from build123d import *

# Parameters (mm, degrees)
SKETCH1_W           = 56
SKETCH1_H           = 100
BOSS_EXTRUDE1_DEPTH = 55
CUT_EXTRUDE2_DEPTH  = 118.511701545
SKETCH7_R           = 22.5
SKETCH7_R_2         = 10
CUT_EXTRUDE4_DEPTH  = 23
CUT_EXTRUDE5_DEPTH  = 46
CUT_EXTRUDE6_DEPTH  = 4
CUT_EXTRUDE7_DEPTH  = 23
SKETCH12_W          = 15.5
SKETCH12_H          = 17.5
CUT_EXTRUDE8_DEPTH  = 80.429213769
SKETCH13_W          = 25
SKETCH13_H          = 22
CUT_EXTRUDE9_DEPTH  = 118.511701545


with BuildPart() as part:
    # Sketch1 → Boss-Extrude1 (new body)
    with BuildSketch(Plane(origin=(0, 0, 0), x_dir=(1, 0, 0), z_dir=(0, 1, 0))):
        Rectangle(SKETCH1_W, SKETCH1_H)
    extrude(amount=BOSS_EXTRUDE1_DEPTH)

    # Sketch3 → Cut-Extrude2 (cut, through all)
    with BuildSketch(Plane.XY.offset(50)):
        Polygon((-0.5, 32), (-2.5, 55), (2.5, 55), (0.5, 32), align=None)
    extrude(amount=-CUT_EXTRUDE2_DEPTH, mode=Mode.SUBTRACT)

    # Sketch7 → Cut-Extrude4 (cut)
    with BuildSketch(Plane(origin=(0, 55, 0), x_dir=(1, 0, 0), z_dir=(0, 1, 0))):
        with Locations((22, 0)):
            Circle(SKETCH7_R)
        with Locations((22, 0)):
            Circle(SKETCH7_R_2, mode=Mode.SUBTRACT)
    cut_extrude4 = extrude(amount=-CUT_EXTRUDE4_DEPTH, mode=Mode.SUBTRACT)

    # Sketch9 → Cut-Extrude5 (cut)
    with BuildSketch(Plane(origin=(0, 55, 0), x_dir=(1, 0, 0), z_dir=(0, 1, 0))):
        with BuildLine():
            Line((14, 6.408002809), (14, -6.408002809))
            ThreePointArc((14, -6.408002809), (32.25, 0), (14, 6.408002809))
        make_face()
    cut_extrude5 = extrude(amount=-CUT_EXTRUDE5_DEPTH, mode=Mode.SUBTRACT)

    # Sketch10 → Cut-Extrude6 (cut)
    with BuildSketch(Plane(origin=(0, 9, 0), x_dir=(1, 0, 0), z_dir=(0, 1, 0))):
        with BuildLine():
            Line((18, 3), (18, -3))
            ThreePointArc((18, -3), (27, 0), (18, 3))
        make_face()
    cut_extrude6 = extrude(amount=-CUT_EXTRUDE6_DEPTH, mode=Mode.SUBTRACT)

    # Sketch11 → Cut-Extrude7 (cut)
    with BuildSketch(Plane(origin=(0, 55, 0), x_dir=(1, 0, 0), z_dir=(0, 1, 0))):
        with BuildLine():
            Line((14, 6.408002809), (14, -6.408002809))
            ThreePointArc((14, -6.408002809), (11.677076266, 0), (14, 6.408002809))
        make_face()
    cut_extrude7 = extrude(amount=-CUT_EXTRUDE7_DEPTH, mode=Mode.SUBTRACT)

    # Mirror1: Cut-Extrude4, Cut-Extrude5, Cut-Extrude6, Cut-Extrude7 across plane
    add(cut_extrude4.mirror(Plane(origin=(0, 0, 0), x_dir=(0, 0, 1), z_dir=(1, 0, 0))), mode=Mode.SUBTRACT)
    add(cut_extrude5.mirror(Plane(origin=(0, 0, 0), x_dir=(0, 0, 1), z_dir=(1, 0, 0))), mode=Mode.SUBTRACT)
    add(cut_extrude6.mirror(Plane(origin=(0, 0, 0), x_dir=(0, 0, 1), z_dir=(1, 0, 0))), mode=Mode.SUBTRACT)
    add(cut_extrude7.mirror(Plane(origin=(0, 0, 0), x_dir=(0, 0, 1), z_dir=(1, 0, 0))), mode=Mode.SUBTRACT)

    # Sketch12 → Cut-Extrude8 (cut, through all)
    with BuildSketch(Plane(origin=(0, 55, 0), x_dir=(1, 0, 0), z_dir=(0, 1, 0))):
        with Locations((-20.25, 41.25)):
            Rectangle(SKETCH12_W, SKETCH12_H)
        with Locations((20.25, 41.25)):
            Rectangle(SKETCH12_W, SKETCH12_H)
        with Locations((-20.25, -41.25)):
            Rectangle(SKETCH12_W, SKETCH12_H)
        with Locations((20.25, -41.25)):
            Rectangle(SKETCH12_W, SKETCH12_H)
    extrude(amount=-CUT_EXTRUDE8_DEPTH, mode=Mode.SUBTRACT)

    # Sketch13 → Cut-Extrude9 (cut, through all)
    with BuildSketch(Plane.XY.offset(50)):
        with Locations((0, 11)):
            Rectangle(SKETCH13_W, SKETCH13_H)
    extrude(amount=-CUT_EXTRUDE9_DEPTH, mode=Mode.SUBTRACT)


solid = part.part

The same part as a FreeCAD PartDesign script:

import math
import FreeCAD as App
import Part
import Sketcher
Q = App.Units.Quantity


def add_polygon(sketch, points):
    """Adds a closed chain of lines whose ends are joined by coincident constraints."""
    first, n = sketch.GeometryCount, len(points)
    for a, b in zip(points, points[1:] + points[:1]):
        sketch.addGeometry(Part.LineSegment(App.Vector(*a, 0), App.Vector(*b, 0)), False)
    for i in range(n):
        sketch.addConstraint(Sketcher.Constraint("Coincident", first + i, 2, first + (i + 1) % n, 1))

doc = App.newDocument("Part")
body = doc.addObject("PartDesign::Body", "Body")

# Sketch on XZ plane
sketch1 = doc.addObject("Sketcher::SketchObject", "Sketch")
body.addObject(sketch1)
sketch1.AttachmentSupport = (doc.XZ_Plane, [""])
sketch1.MapMode = "FlatFace"
add_polygon(sketch1, [(-28, -50), (-28, 50), (28, 50), (28, -50)])  # lines 0-3
sketch1.addConstraint([
    Sketcher.Constraint("Vertical", 0),
    Sketcher.Constraint("Horizontal", 1),
    Sketcher.Constraint("Vertical", 2),
    Sketcher.Constraint("Horizontal", 3),
    Sketcher.Constraint("Symmetric", 0, 2, 2, 2, -1, 1),
    Sketcher.Constraint("DistanceX", 1, 1, 1, 2, Q("56 mm")),
    Sketcher.Constraint("DistanceY", 0, 1, 0, 2, Q("100 mm")),
])
pad1 = doc.addObject("PartDesign::Pad", "Pad")
body.addObject(pad1)
pad1.Profile = sketch1
pad1.Length = 55
pad1.Reversed = True

# Sketch on XY plane
sketch2 = doc.addObject("Sketcher::SketchObject", "Sketch001")
body.addObject(sketch2)
sketch2.AttachmentSupport = (doc.XY_Plane, [""])
sketch2.MapMode = "FlatFace"
sketch2.AttachmentOffset = App.Placement(App.Vector(0, 0, 50), App.Rotation())
add_polygon(sketch2, [(-2.5, 55), (-0.5, 32), (0.5, 32), (2.5, 55)])  # lines 0-3
sketch2.addConstraint([
    Sketcher.Constraint("Horizontal", 1),
    Sketcher.Constraint("Horizontal", 3),
    Sketcher.Constraint("Equal", 0, 2),
    Sketcher.Constraint("DistanceX", 1, 1, 1, 2, Q("1 mm")),
    Sketcher.Constraint("DistanceX", 3, 2, 3, 1, Q("5 mm")),
    Sketcher.Constraint("DistanceY", -1, 1, 0, 2, Q("32 mm")),
    Sketcher.Constraint("DistanceY", -1, 1, 2, 2, Q("55 mm")),
    Sketcher.Constraint("DistanceX", 0, 2, -1, 1, Q("0.5 mm")),
])
pocket1 = doc.addObject("PartDesign::Pocket", "Pocket")
body.addObject(pocket1)
pocket1.Profile = sketch2
pocket1.Type = "ThroughAll"

# Sketch on XZ plane
sketch3 = doc.addObject("Sketcher::SketchObject", "Sketch002")
body.addObject(sketch3)
sketch3.AttachmentSupport = (doc.XZ_Plane, [""])
sketch3.MapMode = "FlatFace"
sketch3.AttachmentOffset = App.Placement(App.Vector(0, 0, -55), App.Rotation())
sketch3.addGeometry([
    Part.Circle(App.Vector(22, 0, 0), App.Vector(0, 0, 1), 22),
    Part.Circle(App.Vector(22, 0, 0), App.Vector(0, 0, 1), 10),
], False)
sketch3.addConstraint([
    Sketcher.Constraint("Coincident", 1, 3, 0, 3),
    Sketcher.Constraint("PointOnObject", 0, 3, -1),
    Sketcher.Constraint("Diameter", 0, Q("45 mm")),
    Sketcher.Constraint("Diameter", 1, Q("20 mm")),
    Sketcher.Constraint("DistanceX", -1, 1, 0, 3, Q("22 mm")),
])
pocket2 = doc.addObject("PartDesign::Pocket", "Pocket001")
body.addObject(pocket2)
pocket2.Profile = sketch3
pocket2.Length = 23
pocket2.Reversed = True

# Sketch on XZ plane
sketch4 = doc.addObject("Sketcher::SketchObject", "Sketch003")
body.addObject(sketch4)
sketch4.AttachmentSupport = (doc.XZ_Plane, [""])
sketch4.MapMode = "FlatFace"
sketch4.AttachmentOffset = App.Placement(App.Vector(0, 0, -55), App.Rotation())
sketch4.addGeometry([
    Part.LineSegment(App.Vector(14, -6, 0), App.Vector(14, 6, 0)),
    Part.ArcOfCircle(Part.Circle(App.Vector(22, 0, 0), App.Vector(0, 0, 1), 10), math.radians(-141), math.radians(141)),
], False)
sketch4.addConstraint([
    Sketcher.Constraint("Coincident", 0, 1, 1, 1),
    Sketcher.Constraint("Coincident", 1, 2, 0, 2),
    Sketcher.Constraint("Vertical", 0),
    Sketcher.Constraint("PointOnObject", 1, 3, -1),
    Sketcher.Constraint("Radius", 1, Q("10.25 mm")),
    Sketcher.Constraint("DistanceX", -1, 1, 1, 3, Q("22 mm")),
    Sketcher.Constraint("DistanceX", -1, 1, 0, 1, Q("14 mm")),
])
pocket3 = doc.addObject("PartDesign::Pocket", "Pocket002")
body.addObject(pocket3)
pocket3.Profile = sketch4
pocket3.Length = 46
pocket3.Reversed = True

# Sketch on XZ plane
sketch5 = doc.addObject("Sketcher::SketchObject", "Sketch004")
body.addObject(sketch5)
sketch5.AttachmentSupport = (doc.XZ_Plane, [""])
sketch5.MapMode = "FlatFace"
sketch5.AttachmentOffset = App.Placement(App.Vector(0, 0, -9), App.Rotation())
sketch5.addGeometry([
    Part.LineSegment(App.Vector(18, -3, 0), App.Vector(18, 3, 0)),
    Part.ArcOfCircle(Part.Circle(App.Vector(22, 0, 0), App.Vector(0, 0, 1), 5), math.radians(-143), math.radians(143)),
], False)
sketch5.addConstraint([
    Sketcher.Constraint("Coincident", 0, 1, 1, 1),
    Sketcher.Constraint("Coincident", 1, 2, 0, 2),
    Sketcher.Constraint("Vertical", 0),
    Sketcher.Constraint("PointOnObject", 1, 3, -1),
    Sketcher.Constraint("Radius", 1, Q("5 mm")),
    Sketcher.Constraint("DistanceY", 0, 1, 0, 2, Q("6 mm")),
    Sketcher.Constraint("DistanceX", -1, 1, 1, 3, Q("22 mm")),
])
pocket4 = doc.addObject("PartDesign::Pocket", "Pocket003")
body.addObject(pocket4)
pocket4.Profile = sketch5
pocket4.Length = 4
pocket4.Reversed = True

# Sketch on XZ plane
sketch6 = doc.addObject("Sketcher::SketchObject", "Sketch005")
body.addObject(sketch6)
sketch6.AttachmentSupport = (doc.XZ_Plane, [""])
sketch6.MapMode = "FlatFace"
sketch6.AttachmentOffset = App.Placement(App.Vector(0, 0, -55), App.Rotation())
sketch6.addGeometry([
    Part.LineSegment(App.Vector(14, 6, 0), App.Vector(14, -6, 0)),
    Part.ArcOfCircle(Part.Circle(App.Vector(22, 0, 0), App.Vector(0, 0, 1), 10), math.radians(140), math.radians(220)),
], False)
sketch6.addConstraint([
    Sketcher.Constraint("Coincident", 0, 1, 1, 1),
    Sketcher.Constraint("Coincident", 1, 2, 0, 2),
    Sketcher.Constraint("Vertical", 0),
    Sketcher.Constraint("PointOnObject", 1, 3, -1),
    Sketcher.Constraint("Radius", 1, Q("10 mm")),
    Sketcher.Constraint("DistanceX", -1, 1, 0, 1, Q("14 mm")),
    Sketcher.Constraint("DistanceY", 0, 2, 0, 1, Q("12.816006 mm")),
])
pocket5 = doc.addObject("PartDesign::Pocket", "Pocket004")
body.addObject(pocket5)
pocket5.Profile = sketch6
pocket5.Length = 23
pocket5.Reversed = True
doc.recompute()

mirrored = doc.addObject("PartDesign::Mirrored", "Mirrored")
body.addObject(mirrored)
mirrored.Originals = [pocket2, pocket3, pocket4, pocket5]
mirrored.MirrorPlane = (doc.YZ_Plane, [""])
body.Tip = mirrored

# Sketch on XZ plane
sketch7 = doc.addObject("Sketcher::SketchObject", "Sketch006")
body.addObject(sketch7)
sketch7.AttachmentSupport = (doc.XZ_Plane, [""])
sketch7.MapMode = "FlatFace"
sketch7.AttachmentOffset = App.Placement(App.Vector(0, 0, -55), App.Rotation())
add_polygon(sketch7, [(-28, -50), (-28, -32), (-12, -32), (-12, -50)])  # lines 0-3
add_polygon(sketch7, [(12, -50), (12, -32), (28, -32), (28, -50)])  # lines 4-7
add_polygon(sketch7, [(-28, 32), (-28, 50), (-12, 50), (-12, 32)])  # lines 8-11
add_polygon(sketch7, [(12, 32), (12, 50), (28, 50), (28, 32)])  # lines 12-15
sketch7.addConstraint([
    Sketcher.Constraint("Vertical", 0),
    Sketcher.Constraint("Horizontal", 1),
    Sketcher.Constraint("Vertical", 2),
    Sketcher.Constraint("Horizontal", 3),
    Sketcher.Constraint("Vertical", 4),
    Sketcher.Constraint("Horizontal", 5),
    Sketcher.Constraint("Vertical", 6),
    Sketcher.Constraint("Horizontal", 7),
    Sketcher.Constraint("Vertical", 8),
    Sketcher.Constraint("Horizontal", 9),
    Sketcher.Constraint("Vertical", 10),
    Sketcher.Constraint("Horizontal", 11),
    Sketcher.Constraint("Vertical", 12),
    Sketcher.Constraint("Horizontal", 13),
    Sketcher.Constraint("Vertical", 14),
    Sketcher.Constraint("Horizontal", 15),
    Sketcher.Constraint("Symmetric", 6, 2, 8, 2, -1, 1),
    Sketcher.Constraint("Symmetric", 4, 2, 10, 2, -1, 1),
    Sketcher.Constraint("Symmetric", 2, 2, 12, 2, -1, 1),
    Sketcher.Constraint("Symmetric", 0, 2, 14, 2, -1, 1),
    Sketcher.Constraint("Symmetric", 1, 2, 4, 2, -2),
    Sketcher.Constraint("Symmetric", 3, 2, 6, 2, -2),
    Sketcher.Constraint("DistanceX", 1, 1, 1, 2, Q("15.5 mm")),
    Sketcher.Constraint("DistanceY", 0, 1, 0, 2, Q("17.5 mm")),
    Sketcher.Constraint("DistanceX", 0, 2, -1, 1, Q("28 mm")),
    Sketcher.Constraint("DistanceY", 2, 2, -1, 1, Q("50 mm")),
])
pocket6 = doc.addObject("PartDesign::Pocket", "Pocket005")
body.addObject(pocket6)
pocket6.Profile = sketch7
pocket6.Type = "ThroughAll"
pocket6.Reversed = True

# Sketch on XY plane
sketch8 = doc.addObject("Sketcher::SketchObject", "Sketch007")
body.addObject(sketch8)
sketch8.AttachmentSupport = (doc.XY_Plane, [""])
sketch8.MapMode = "FlatFace"
sketch8.AttachmentOffset = App.Placement(App.Vector(0, 0, 50), App.Rotation())
add_polygon(sketch8, [(-12, 22), (-12, 0), (12, 0), (12, 22)])  # lines 0-3
sketch8.addConstraint([
    Sketcher.Constraint("Vertical", 0),
    Sketcher.Constraint("Horizontal", 1),
    Sketcher.Constraint("Vertical", 2),
    Sketcher.Constraint("Horizontal", 3),
    Sketcher.Constraint("Symmetric", 0, 2, 1, 2, -1, 1),
    Sketcher.Constraint("DistanceX", 1, 1, 1, 2, Q("25 mm")),
    Sketcher.Constraint("DistanceY", 0, 2, 0, 1, Q("22 mm")),
])
pocket7 = doc.addObject("PartDesign::Pocket", "Pocket006")
body.addObject(pocket7)
pocket7.Profile = sketch8
pocket7.Type = "ThroughAll"

doc.recompute()
